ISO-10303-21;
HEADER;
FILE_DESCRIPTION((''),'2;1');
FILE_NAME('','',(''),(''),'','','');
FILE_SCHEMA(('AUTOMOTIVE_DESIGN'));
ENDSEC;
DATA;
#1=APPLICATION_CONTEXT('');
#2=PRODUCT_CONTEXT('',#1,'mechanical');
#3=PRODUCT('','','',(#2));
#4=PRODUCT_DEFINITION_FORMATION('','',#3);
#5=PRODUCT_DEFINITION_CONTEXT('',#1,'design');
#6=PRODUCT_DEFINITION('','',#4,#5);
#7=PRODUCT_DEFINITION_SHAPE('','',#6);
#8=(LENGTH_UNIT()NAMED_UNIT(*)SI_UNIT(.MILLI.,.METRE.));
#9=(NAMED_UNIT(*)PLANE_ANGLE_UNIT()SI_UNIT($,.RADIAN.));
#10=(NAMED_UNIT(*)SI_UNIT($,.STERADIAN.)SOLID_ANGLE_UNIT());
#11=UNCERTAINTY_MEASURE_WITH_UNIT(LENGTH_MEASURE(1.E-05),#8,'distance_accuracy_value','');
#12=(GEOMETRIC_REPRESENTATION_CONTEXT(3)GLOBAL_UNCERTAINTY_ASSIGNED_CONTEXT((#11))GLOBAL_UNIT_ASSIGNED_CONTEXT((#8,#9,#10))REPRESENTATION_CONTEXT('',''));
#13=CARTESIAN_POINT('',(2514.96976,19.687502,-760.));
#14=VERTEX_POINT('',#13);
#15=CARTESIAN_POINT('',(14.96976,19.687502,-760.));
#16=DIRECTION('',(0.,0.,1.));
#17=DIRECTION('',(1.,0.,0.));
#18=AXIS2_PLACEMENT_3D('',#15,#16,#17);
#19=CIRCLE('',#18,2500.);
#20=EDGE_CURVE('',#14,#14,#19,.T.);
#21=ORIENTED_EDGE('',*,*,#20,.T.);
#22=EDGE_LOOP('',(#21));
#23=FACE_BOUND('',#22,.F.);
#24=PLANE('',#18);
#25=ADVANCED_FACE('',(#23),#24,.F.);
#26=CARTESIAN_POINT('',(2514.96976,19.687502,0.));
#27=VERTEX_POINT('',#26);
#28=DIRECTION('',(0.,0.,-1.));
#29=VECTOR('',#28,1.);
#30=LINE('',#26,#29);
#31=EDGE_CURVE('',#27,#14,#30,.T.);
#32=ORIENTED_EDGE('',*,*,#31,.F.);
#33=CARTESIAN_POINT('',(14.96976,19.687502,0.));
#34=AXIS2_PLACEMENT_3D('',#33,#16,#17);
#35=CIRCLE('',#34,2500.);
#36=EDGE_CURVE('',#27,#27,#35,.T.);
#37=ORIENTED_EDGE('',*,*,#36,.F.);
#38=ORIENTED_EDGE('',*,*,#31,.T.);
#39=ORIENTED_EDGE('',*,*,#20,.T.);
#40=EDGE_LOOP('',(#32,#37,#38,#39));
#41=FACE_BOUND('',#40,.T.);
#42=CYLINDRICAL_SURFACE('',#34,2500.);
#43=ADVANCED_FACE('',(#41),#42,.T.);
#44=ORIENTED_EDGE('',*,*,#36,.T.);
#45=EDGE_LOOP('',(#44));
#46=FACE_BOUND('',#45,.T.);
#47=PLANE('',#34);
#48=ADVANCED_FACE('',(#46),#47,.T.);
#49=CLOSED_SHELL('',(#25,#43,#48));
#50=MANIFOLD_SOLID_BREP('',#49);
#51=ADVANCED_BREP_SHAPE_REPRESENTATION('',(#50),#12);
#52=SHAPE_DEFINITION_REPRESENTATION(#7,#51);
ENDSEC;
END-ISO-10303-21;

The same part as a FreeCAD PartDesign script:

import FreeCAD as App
import Part
import Sketcher
Q = App.Units.Quantity

doc = App.newDocument("Part")
params = doc.addObject("Spreadsheet::Sheet", "Params")
for row, (alias, value) in enumerate([
    ("sketch1_diameter", "5000 mm"),
    ("pad1_length", "760 mm"),
], start=1):
    params.set(f"A{row}", alias)
    params.set(f"B{row}", "=" + value)
    params.setAlias(f"B{row}", alias)

body = doc.addObject("PartDesign::Body", "Body")

sketch1 = doc.addObject("Sketcher::SketchObject", "Sketch")
body.addObject(sketch1)
sketch1.AttachmentSupport = (doc.XY_Plane, [""])
sketch1.MapMode = "FlatFace"
sketch1.addGeometry(Part.Circle(App.Vector(14.96976, 19.687502, 0), App.Vector(0, 0, 1), 2500), False)
sketch1.addConstraint([
    Sketcher.Constraint("Diameter", 0, Q("5000 mm")),
    Sketcher.Constraint("DistanceY", -1, 1, 0, 3, Q("19.687502 mm")),
    Sketcher.Constraint("DistanceX", -1, 1, 0, 3, Q("14.96976 mm")),
])
sketch1.setExpression("Constraints[0]", "Params.sketch1_diameter")
pad1 = doc.addObject("PartDesign::Pad", "Pad")
body.addObject(pad1)
pad1.Profile = sketch1
pad1.setExpression("Length", "Params.pad1_length")
pad1.Reversed = True

doc.recompute()
